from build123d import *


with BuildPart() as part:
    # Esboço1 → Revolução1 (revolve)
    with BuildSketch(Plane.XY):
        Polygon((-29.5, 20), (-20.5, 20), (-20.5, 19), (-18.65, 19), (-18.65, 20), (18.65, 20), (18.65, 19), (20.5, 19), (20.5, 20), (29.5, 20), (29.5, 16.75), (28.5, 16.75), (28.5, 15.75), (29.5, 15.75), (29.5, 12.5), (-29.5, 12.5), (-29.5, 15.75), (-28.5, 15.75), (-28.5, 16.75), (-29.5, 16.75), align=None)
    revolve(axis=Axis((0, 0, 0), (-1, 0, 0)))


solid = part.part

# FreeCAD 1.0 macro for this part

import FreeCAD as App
import Part
import Sketcher

V = App.Vector

doc = App.newDocument("Part")
body = doc.addObject("PartDesign::Body", "Body")

# Sketch on XY plane
sketch1 = body.newObject("Sketcher::SketchObject", "Sketch")
sketch1.AttachmentSupport = (doc.getObject("XY_Plane"), [""])
sketch1.MapMode = "FlatFace"
sketch1.addGeometry(Part.LineSegment(V(-20.5, 20, 0), V(-29.5, 20, 0)), False)
sketch1.addGeometry(Part.LineSegment(V(-29.5, 20, 0), V(-29.5, 16.8, 0)), False)
sketch1.addGeometry(Part.LineSegment(V(-29.5, 16.8, 0), V(-28.5, 16.8, 0)), False)
sketch1.addGeometry(Part.LineSegment(V(-28.5, 16.8, 0), V(-28.5, 15.8, 0)), False)
sketch1.addGeometry(Part.LineSegment(V(-28.5, 15.8, 0), V(-29.5, 15.8, 0)), False)
sketch1.addGeometry(Part.LineSegment(V(-29.5, 15.8, 0), V(-29.5, 12.5, 0)), False)
sketch1.addGeometry(Part.LineSegment(V(-29.5, 12.5, 0), V(29.5, 12.5, 0)), False)
sketch1.addGeometry(Part.LineSegment(V(29.5, 12.5, 0), V(29.5, 15.8, 0)), False)
sketch1.addGeometry(Part.LineSegment(V(29.5, 15.8, 0), V(28.5, 15.8, 0)), False)
sketch1.addGeometry(Part.LineSegment(V(28.5, 15.8, 0), V(28.5, 16.8, 0)), False)
sketch1.addGeometry(Part.LineSegment(V(28.5, 16.8, 0), V(29.5, 16.8, 0)), False)
sketch1.addGeometry(Part.LineSegment(V(29.5, 16.8, 0), V(29.5, 20, 0)), False)
sketch1.addGeometry(Part.LineSegment(V(29.5, 20, 0), V(20.5, 20, 0)), False)
sketch1.addGeometry(Part.LineSegment(V(20.5, 20, 0), V(20.5, 19, 0)), False)
sketch1.addGeometry(Part.LineSegment(V(20.5, 19, 0), V(18.6, 19, 0)), False)
sketch1.addGeometry(Part.LineSegment(V(18.6, 19, 0), V(18.6, 20, 0)), False)
sketch1.addGeometry(Part.LineSegment(V(18.6, 20, 0), V(-18.6, 20, 0)), False)
sketch1.addGeometry(Part.LineSegment(V(-18.6, 20, 0), V(-18.6, 19, 0)), False)
sketch1.addGeometry(Part.LineSegment(V(-18.6, 19, 0), V(-20.5, 19, 0)), False)
sketch1.addGeometry(Part.LineSegment(V(-20.5, 19, 0), V(-20.5, 20, 0)), False)
sketch1.addConstraint(Sketcher.Constraint("Coincident", 0, 2, 1, 1))
sketch1.addConstraint(Sketcher.Constraint("Coincident", 1, 2, 2, 1))
sketch1.addConstraint(Sketcher.Constraint("Coincident", 2, 2, 3, 1))
sketch1.addConstraint(Sketcher.Constraint("Coincident", 3, 2, 4, 1))
sketch1.addConstraint(Sketcher.Constraint("Coincident", 4, 2, 5, 1))
sketch1.addConstraint(Sketcher.Constraint("Coincident", 5, 2, 6, 1))
sketch1.addConstraint(Sketcher.Constraint("Coincident", 6, 2, 7, 1))
sketch1.addConstraint(Sketcher.Constraint("Coincident", 7, 2, 8, 1))
sketch1.addConstraint(Sketcher.Constraint("Coincident", 8, 2, 9, 1))
sketch1.addConstraint(Sketcher.Constraint("Coincident", 9, 2, 10, 1))
sketch1.addConstraint(Sketcher.Constraint("Coincident", 10, 2, 11, 1))
sketch1.addConstraint(Sketcher.Constraint("Coincident", 11, 2, 12, 1))
sketch1.addConstraint(Sketcher.Constraint("Coincident", 12, 2, 13, 1))
sketch1.addConstraint(Sketcher.Constraint("Coincident", 13, 2, 14, 1))
sketch1.addConstraint(Sketcher.Constraint("Coincident", 14, 2, 15, 1))
sketch1.addConstraint(Sketcher.Constraint("Coincident", 15, 2, 16, 1))
sketch1.addConstraint(Sketcher.Constraint("Coincident", 16, 2, 17, 1))
sketch1.addConstraint(Sketcher.Constraint("Coincident", 17, 2, 18, 1))
sketch1.addConstraint(Sketcher.Constraint("Coincident", 18, 2, 19, 1))
sketch1.addConstraint(Sketcher.Constraint("Coincident", 19, 2, 0, 1))
sketch1.addConstraint(Sketcher.Constraint("Horizontal", 0))
sketch1.addConstraint(Sketcher.Constraint("Vertical", 1))
sketch1.addConstraint(Sketcher.Constraint("Horizontal", 2))
sketch1.addConstraint(Sketcher.Constraint("Vertical", 3))
sketch1.addConstraint(Sketcher.Constraint("Horizontal", 4))
sketch1.addConstraint(Sketcher.Constraint("Vertical", 5))
sketch1.addConstraint(Sketcher.Constraint("Horizontal", 6))
sketch1.addConstraint(Sketcher.Constraint("Vertical", 7))
sketch1.addConstraint(Sketcher.Constraint("Horizontal", 8))
sketch1.addConstraint(Sketcher.Constraint("Vertical", 9))
sketch1.addConstraint(Sketcher.Constraint("Horizontal", 10))
sketch1.addConstraint(Sketcher.Constraint("Vertical", 11))
sketch1.addConstraint(Sketcher.Constraint("Horizontal", 12))
sketch1.addConstraint(Sketcher.Constraint("Vertical", 13))
sketch1.addConstraint(Sketcher.Constraint("Horizontal", 14))
sketch1.addConstraint(Sketcher.Constraint("Vertical", 15))
sketch1.addConstraint(Sketcher.Constraint("Horizontal", 16))
sketch1.addConstraint(Sketcher.Constraint("Vertical", 17))
sketch1.addConstraint(Sketcher.Constraint("Horizontal", 18))
sketch1.addConstraint(Sketcher.Constraint("Vertical", 19))
sketch1.addConstraint(Sketcher.Constraint("Symmetric", 4, 2, 7, 2, -2))
sketch1.addConstraint(Sketcher.Constraint("Symmetric", 2, 2, 9, 2, -2))
sketch1.addConstraint(Sketcher.Constraint("Symmetric", 0, 2, 11, 2, -2))
sketch1.addConstraint(Sketcher.Constraint("Symmetric", 14, 2, 17, 2, -2))
sketch1.addConstraint(Sketcher.Constraint("Horizontal", 12, 2, 15, 2))
sketch1.addConstraint(Sketcher.Constraint("Vertical", 1, 2, 4, 2))
sketch1.addConstraint(Sketcher.Constraint("Equal", 0, 12))
sketch1.addConstraint(Sketcher.Constraint("Equal", 10, 3))
sketch1.addConstraint(Sketcher.Constraint("Equal", 1, 5))
sketch1.addConstraint(Sketcher.Constraint("Equal", 9, 13))
sketch1.addConstraint(Sketcher.Constraint("DistanceX", 0, 2, 0, 1, 9.0))
sketch1.addConstraint(Sketcher.Constraint("DistanceX", 2, 1, 2, 2, 1.0))
sketch1.addConstraint(Sketcher.Constraint("DistanceX", 6, 1, 6, 2, 59.0))
sketch1.addConstraint(Sketcher.Constraint("DistanceX", 16, 2, 16, 1, 37.3))
sketch1.addConstraint(Sketcher.Constraint("DistanceY", -1, 1, 0, 2, 20.0))
sketch1.addConstraint(Sketcher.Constraint("DistanceY", 1, 2, 1, 1, 3.25))
revolution = body.newObject("PartDesign::Revolution", "Revolution")
revolution.Profile = sketch1
revolution.ReferenceAxis = (sketch1, ["H_Axis"])
revolution.Angle = 360

doc.recompute()
